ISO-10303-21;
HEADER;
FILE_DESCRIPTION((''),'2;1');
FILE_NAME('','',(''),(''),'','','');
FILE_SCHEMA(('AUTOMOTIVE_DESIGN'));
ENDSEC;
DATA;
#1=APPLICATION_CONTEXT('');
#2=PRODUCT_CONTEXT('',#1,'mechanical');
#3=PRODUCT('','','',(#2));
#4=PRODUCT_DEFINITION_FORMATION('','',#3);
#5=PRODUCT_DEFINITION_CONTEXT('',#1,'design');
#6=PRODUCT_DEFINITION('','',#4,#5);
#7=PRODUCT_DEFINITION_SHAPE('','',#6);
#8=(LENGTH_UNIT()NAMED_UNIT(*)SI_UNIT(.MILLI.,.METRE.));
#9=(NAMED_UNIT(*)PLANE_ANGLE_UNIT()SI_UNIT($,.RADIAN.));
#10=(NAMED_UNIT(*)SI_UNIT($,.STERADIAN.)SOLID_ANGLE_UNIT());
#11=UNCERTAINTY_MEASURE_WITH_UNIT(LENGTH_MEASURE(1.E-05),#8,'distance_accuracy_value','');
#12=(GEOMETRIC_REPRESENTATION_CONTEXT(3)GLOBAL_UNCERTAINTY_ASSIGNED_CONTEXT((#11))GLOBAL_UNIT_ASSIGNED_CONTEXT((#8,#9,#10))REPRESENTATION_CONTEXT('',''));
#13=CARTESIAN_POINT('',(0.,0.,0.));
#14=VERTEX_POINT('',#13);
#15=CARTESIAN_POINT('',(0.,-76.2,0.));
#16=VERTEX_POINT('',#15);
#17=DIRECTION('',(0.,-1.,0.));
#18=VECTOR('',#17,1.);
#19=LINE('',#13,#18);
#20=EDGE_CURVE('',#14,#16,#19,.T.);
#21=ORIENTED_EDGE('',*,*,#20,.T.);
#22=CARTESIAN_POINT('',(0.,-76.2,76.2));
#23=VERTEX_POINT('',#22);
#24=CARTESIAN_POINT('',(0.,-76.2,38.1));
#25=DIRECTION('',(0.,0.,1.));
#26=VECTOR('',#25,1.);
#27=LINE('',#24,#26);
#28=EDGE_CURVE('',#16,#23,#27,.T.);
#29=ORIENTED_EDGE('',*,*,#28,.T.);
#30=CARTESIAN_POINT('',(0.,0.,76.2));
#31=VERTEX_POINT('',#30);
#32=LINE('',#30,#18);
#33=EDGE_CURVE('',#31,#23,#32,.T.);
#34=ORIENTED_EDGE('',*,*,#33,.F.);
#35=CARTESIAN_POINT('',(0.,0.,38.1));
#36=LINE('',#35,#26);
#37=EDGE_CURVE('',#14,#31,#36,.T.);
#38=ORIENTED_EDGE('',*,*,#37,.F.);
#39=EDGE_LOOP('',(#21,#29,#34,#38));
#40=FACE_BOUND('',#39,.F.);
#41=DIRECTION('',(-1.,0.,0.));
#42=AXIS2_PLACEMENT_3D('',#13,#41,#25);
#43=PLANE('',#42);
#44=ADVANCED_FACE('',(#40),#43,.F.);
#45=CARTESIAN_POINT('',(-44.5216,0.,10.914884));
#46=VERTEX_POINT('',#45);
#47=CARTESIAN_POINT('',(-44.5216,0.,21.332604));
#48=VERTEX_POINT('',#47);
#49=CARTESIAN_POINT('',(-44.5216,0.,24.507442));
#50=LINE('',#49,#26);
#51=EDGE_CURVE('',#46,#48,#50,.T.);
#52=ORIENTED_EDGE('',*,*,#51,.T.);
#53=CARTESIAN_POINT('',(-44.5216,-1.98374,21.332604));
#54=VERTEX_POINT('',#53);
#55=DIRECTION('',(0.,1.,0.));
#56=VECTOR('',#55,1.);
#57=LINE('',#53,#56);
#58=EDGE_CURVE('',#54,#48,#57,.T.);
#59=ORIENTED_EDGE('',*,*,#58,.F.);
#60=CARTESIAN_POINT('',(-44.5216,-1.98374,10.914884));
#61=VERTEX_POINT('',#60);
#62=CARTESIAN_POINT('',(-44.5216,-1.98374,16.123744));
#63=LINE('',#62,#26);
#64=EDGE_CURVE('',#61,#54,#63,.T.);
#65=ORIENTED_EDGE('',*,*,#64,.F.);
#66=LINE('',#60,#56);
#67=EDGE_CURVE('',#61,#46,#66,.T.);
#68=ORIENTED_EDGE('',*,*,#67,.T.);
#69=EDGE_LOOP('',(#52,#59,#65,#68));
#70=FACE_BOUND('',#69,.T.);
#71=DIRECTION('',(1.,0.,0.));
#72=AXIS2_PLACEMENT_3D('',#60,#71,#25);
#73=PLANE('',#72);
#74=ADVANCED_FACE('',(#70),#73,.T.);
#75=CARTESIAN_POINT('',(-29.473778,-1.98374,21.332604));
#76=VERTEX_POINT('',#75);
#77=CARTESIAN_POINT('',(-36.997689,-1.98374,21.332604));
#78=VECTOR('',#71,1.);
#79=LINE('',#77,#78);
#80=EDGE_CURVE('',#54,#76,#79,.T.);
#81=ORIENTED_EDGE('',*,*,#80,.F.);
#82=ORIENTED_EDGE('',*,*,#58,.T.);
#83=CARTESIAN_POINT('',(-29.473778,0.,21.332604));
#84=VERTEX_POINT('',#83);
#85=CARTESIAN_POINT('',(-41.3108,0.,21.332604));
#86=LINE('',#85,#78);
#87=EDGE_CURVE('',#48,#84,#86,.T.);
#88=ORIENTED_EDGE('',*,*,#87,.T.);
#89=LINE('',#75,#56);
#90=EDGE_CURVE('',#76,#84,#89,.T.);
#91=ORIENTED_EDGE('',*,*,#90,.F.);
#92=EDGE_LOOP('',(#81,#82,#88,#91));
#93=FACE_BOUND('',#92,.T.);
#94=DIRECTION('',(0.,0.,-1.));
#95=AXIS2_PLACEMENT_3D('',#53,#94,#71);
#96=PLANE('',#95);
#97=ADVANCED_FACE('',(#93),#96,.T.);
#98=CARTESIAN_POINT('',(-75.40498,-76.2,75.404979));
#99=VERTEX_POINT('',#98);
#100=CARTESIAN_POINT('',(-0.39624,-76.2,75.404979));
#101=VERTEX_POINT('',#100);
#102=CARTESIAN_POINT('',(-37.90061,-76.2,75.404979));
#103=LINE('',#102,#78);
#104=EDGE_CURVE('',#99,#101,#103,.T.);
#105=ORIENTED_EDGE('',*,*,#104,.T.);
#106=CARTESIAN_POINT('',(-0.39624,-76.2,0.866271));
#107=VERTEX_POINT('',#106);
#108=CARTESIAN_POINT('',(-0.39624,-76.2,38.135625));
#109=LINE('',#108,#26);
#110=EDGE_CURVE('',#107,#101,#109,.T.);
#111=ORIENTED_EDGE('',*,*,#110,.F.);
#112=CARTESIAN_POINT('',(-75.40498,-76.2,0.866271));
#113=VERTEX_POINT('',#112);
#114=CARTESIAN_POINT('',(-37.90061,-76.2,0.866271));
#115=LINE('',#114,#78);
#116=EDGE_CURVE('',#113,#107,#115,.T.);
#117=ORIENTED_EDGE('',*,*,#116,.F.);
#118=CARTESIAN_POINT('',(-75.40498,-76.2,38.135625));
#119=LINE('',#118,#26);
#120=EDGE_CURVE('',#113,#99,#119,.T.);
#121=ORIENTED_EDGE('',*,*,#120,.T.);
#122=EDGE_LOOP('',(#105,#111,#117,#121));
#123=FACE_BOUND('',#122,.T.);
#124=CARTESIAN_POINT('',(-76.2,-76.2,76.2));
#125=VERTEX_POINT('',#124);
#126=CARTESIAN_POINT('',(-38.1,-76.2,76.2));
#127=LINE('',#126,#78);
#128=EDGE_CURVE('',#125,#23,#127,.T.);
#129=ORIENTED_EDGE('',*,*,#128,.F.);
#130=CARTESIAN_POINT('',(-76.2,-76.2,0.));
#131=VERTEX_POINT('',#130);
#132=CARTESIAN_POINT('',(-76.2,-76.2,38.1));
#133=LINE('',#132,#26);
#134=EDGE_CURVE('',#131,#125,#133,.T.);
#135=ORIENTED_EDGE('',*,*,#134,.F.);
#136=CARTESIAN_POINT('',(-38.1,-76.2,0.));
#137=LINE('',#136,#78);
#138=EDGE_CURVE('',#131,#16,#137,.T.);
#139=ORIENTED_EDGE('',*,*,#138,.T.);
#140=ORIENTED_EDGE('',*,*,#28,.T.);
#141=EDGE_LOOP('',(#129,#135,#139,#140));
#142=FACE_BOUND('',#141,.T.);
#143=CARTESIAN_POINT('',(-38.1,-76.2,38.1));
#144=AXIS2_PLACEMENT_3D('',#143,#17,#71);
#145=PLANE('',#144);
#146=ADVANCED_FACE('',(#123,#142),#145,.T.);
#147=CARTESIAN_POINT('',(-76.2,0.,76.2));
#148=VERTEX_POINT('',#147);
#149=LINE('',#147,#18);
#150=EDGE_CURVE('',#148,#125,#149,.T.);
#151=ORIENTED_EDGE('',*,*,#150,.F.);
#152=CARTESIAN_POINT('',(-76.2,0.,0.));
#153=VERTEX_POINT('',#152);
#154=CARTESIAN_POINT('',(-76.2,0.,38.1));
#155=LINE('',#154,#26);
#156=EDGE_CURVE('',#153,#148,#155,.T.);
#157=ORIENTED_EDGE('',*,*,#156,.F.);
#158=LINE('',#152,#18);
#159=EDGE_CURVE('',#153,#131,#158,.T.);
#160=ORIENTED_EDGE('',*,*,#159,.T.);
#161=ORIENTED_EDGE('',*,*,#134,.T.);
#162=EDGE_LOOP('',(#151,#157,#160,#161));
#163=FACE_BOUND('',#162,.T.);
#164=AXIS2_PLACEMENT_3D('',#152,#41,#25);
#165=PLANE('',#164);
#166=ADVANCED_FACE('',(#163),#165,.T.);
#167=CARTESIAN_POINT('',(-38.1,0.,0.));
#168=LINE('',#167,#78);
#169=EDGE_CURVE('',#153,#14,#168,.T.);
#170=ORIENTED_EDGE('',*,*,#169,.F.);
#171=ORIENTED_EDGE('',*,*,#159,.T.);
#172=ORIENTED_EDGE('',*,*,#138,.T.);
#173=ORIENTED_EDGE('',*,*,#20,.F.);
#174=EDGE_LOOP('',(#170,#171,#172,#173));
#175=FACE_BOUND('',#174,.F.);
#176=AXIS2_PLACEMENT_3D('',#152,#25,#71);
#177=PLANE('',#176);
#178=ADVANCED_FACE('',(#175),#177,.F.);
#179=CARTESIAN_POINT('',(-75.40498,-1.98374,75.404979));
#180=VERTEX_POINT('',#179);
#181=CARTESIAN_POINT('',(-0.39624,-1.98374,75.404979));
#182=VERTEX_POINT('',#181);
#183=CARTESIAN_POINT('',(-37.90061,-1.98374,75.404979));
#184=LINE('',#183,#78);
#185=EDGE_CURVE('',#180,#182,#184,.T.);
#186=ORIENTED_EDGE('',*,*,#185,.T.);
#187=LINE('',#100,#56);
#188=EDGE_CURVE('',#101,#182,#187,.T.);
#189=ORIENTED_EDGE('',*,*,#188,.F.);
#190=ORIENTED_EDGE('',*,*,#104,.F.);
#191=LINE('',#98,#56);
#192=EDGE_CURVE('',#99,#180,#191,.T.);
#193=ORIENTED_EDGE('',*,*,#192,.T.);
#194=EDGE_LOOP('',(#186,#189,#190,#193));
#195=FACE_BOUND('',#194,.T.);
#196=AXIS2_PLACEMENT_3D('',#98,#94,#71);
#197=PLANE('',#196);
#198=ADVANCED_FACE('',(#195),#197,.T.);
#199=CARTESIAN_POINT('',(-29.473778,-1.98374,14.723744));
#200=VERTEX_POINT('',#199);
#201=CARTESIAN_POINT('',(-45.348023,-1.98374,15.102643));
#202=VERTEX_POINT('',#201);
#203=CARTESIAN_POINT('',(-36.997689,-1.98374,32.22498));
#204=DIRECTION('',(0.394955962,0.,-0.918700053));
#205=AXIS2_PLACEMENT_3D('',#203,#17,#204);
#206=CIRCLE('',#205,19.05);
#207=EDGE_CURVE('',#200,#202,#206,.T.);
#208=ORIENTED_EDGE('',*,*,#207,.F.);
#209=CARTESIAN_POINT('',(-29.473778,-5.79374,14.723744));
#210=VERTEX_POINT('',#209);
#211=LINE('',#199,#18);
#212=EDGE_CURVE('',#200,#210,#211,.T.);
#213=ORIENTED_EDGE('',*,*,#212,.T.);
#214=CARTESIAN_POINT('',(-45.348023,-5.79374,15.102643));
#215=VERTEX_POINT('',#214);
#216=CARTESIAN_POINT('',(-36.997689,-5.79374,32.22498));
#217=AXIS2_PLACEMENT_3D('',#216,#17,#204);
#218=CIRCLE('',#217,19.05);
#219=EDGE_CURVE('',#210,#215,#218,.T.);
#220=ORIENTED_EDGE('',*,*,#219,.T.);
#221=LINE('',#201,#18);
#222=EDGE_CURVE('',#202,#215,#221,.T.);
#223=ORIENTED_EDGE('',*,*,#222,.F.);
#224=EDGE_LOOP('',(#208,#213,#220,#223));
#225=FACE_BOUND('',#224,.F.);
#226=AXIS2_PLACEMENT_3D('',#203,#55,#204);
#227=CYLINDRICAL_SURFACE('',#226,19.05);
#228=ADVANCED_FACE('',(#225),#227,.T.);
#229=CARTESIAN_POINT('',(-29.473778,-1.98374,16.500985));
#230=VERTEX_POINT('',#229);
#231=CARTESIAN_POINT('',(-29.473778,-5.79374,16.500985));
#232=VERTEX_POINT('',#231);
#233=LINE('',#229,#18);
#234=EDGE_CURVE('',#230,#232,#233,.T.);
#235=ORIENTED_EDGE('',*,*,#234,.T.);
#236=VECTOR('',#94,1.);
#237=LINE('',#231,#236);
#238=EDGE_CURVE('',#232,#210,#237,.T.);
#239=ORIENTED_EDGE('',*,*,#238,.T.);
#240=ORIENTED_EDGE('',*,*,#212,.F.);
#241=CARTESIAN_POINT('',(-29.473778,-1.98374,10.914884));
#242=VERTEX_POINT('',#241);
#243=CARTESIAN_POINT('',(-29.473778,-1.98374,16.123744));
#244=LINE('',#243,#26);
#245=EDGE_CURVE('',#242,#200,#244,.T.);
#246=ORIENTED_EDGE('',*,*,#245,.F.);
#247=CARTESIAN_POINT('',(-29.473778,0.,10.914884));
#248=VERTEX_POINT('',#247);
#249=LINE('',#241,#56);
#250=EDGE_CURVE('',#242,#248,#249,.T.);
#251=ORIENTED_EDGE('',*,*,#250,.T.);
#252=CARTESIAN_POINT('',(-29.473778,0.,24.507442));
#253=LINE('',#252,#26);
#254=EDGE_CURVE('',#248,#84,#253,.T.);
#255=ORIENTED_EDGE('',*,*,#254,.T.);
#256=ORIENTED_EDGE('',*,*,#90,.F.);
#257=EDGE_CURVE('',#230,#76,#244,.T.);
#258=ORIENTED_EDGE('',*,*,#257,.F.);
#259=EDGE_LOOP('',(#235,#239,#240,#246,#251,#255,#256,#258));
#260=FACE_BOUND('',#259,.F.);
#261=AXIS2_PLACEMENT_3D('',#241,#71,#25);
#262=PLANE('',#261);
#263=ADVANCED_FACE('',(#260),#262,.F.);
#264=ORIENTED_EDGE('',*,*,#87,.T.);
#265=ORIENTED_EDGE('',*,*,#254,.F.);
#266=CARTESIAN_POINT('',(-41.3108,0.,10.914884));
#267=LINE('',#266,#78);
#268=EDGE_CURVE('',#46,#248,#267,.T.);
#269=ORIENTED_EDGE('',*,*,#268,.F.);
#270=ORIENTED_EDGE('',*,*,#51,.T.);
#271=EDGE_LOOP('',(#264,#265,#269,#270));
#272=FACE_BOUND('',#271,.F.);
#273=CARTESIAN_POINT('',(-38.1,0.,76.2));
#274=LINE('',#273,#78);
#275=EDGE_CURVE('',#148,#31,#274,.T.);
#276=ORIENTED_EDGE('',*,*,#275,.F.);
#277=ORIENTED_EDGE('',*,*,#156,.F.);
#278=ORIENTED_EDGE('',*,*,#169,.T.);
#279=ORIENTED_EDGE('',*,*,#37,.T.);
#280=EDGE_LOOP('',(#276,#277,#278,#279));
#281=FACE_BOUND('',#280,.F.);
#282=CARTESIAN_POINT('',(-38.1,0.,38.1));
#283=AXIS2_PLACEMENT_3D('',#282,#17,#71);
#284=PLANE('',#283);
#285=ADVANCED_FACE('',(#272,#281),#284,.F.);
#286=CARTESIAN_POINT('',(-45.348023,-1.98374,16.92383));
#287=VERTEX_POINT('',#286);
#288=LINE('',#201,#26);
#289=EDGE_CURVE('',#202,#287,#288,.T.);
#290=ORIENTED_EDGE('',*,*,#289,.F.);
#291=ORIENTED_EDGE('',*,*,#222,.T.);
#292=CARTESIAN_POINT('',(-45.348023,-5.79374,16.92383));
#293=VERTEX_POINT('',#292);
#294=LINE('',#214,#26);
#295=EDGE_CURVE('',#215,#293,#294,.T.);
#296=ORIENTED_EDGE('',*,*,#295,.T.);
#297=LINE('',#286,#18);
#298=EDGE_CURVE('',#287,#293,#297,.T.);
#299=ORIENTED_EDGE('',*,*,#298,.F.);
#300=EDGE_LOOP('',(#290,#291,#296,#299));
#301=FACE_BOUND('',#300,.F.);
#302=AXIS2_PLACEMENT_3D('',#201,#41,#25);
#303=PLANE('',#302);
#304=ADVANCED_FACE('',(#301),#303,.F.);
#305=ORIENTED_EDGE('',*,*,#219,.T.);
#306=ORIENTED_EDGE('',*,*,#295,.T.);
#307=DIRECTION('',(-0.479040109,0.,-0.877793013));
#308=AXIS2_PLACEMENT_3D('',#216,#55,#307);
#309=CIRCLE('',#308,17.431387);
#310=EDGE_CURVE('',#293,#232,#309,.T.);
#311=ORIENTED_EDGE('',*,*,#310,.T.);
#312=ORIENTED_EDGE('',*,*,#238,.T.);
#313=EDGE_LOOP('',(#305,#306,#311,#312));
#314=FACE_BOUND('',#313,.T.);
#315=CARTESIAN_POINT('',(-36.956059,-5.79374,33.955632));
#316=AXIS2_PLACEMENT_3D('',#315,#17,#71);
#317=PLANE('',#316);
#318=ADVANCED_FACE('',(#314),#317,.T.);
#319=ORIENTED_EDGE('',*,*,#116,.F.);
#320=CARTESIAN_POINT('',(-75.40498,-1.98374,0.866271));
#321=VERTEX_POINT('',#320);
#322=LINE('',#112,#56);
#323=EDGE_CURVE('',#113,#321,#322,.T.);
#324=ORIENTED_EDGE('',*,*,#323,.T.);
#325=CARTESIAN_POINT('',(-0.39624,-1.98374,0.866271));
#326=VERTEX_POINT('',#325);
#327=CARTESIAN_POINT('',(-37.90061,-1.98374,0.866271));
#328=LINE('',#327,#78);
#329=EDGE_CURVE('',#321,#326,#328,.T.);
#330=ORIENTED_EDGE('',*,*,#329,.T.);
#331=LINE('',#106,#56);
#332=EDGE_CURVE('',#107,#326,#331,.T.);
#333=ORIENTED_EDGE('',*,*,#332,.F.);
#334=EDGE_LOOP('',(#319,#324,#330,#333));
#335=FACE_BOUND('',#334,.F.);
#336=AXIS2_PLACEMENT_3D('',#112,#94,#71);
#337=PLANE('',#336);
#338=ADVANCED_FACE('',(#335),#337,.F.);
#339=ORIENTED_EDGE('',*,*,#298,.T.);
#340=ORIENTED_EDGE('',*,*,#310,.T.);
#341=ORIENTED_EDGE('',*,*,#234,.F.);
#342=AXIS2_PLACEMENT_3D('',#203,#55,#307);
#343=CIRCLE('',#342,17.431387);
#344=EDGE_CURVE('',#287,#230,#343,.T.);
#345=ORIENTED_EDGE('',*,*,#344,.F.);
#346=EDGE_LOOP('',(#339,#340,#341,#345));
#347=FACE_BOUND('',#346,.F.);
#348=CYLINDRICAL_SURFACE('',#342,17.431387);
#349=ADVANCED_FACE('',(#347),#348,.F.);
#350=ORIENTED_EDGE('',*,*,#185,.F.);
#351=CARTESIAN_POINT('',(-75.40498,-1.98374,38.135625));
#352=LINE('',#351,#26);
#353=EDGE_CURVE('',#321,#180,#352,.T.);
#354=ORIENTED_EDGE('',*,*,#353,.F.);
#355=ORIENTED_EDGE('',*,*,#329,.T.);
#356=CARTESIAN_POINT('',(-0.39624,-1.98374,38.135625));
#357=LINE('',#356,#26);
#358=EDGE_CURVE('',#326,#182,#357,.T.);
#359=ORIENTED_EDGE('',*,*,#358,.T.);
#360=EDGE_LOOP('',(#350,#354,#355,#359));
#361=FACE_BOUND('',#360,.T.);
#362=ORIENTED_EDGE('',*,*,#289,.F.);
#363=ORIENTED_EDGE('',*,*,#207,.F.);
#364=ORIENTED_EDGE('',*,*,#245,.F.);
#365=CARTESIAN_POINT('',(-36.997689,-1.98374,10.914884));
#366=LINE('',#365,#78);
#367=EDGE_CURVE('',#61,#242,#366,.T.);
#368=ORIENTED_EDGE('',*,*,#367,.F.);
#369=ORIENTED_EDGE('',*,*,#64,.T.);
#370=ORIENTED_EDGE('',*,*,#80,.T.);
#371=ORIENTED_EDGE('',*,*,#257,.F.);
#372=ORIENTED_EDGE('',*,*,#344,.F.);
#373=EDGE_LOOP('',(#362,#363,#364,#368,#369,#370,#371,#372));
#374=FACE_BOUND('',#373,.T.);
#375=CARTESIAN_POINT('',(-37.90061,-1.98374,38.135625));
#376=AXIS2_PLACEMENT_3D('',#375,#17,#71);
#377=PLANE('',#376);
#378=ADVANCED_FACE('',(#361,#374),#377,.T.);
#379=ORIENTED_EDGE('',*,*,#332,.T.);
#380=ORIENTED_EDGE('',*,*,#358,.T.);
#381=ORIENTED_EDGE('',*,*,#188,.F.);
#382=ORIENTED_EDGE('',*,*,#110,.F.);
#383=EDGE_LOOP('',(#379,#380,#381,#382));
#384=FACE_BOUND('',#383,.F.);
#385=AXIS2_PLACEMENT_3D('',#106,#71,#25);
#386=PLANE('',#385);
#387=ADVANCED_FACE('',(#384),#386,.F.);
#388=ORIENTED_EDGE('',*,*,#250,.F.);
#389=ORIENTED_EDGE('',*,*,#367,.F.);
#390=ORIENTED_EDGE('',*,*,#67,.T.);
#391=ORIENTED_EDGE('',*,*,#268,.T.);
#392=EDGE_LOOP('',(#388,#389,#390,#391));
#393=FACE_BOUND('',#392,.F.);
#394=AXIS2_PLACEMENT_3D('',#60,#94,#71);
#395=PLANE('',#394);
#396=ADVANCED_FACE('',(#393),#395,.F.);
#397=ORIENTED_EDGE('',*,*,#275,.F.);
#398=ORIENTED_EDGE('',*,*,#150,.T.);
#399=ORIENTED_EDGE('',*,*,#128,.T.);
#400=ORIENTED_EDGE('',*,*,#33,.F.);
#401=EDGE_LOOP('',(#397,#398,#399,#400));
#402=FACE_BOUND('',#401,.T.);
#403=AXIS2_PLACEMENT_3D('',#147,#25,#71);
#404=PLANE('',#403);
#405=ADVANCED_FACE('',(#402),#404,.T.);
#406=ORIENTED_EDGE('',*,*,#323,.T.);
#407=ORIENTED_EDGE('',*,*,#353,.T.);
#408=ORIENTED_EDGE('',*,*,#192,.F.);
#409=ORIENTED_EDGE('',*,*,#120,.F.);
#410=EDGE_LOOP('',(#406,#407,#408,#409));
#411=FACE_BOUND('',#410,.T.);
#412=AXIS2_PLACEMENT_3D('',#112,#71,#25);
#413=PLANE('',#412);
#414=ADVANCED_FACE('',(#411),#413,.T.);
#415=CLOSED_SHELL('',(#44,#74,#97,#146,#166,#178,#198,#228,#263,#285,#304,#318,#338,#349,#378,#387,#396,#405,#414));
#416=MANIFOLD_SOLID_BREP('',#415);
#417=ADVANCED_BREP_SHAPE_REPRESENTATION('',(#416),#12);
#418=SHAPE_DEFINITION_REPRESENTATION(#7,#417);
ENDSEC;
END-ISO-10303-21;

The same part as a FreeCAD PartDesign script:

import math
import FreeCAD as App
import Part
import Sketcher

V = App.Vector
Q = App.Units.Quantity

doc = App.newDocument("Part")
body = doc.addObject("PartDesign::Body", "Body")

# Sketch on XZ plane
sketch1 = body.newObject("Sketcher::SketchObject", "Sketch")
sketch1.AttachmentSupport = (doc.getObject("XZ_Plane"), [""])
sketch1.MapMode = "FlatFace"
sketch1.addGeometry([
    Part.LineSegment(V(-76.2, 76.2, 0), V(-76.2, 0, 0)),
    Part.LineSegment(V(-76.2, 0, 0), V(0, 0, 0)),
    Part.LineSegment(V(0, 0, 0), V(0, 76.2, 0)),
    Part.LineSegment(V(0, 76.2, 0), V(-76.2, 76.2, 0)),
], False)
sketch1.addConstraint([
    Sketcher.Constraint("Coincident", 0, 2, 1, 1),
    Sketcher.Constraint("Coincident", 1, 2, 2, 1),
    Sketcher.Constraint("Coincident", 2, 2, 3, 1),
    Sketcher.Constraint("Coincident", 3, 2, 0, 1),
    Sketcher.Constraint("Vertical", 0),
    Sketcher.Constraint("Horizontal", 1),
    Sketcher.Constraint("Vertical", 2),
    Sketcher.Constraint("Horizontal", 3),
    Sketcher.Constraint("Coincident", 1, 2, -1, 1),
    Sketcher.Constraint("Equal", 3, 0),
    Sketcher.Constraint("DistanceX", 1, 1, 1, 2, Q("3 in")),
])
pad1 = body.newObject("PartDesign::Pad", "Pad")
pad1.Profile = sketch1
pad1.Length = Q("3 in")

# Sketch on XZ plane
sketch2 = body.newObject("Sketcher::SketchObject", "Sketch001")
sketch2.AttachmentSupport = (doc.getObject("XZ_Plane"), [""])
sketch2.MapMode = "FlatFace"
sketch2.AttachmentOffset = App.Placement(V(0, 0, 3 * 25.4), App.Rotation())
sketch2.addGeometry([
    Part.LineSegment(V(-75.40498, 75.404979, 0), V(-75.40498, 0.866271, 0)),
    Part.LineSegment(V(-75.40498, 0.866271, 0), V(-0.39624, 0.866271, 0)),
    Part.LineSegment(V(-0.39624, 0.866271, 0), V(-0.39624, 75.404979, 0)),
    Part.LineSegment(V(-0.39624, 75.404979, 0), V(-75.40498, 75.404979, 0)),
], False)
sketch2.addConstraint([
    Sketcher.Constraint("Coincident", 0, 2, 1, 1),
    Sketcher.Constraint("Coincident", 1, 2, 2, 1),
    Sketcher.Constraint("Coincident", 2, 2, 3, 1),
    Sketcher.Constraint("Coincident", 3, 2, 0, 1),
    Sketcher.Constraint("Vertical", 0),
    Sketcher.Constraint("Horizontal", 1),
    Sketcher.Constraint("Vertical", 2),
    Sketcher.Constraint("Horizontal", 3),
    Sketcher.Constraint("DistanceX", 1, 1, 1, 2, Q("2.9531 in")),
    Sketcher.Constraint("DistanceX", 0, 2, -1, 1, Q("2.9687 in")),
    Sketcher.Constraint("DistanceY", -1, 1, 2, 2, Q("2.9687 in")),
    Sketcher.Constraint("DistanceY", 0, 2, 0, 1, Q("74.538709 mm")),
])
pocket1 = body.newObject("PartDesign::Pocket", "Pocket")
pocket1.Profile = sketch2
pocket1.Length = Q("2.9219 in")

# Sketch on XZ plane
sketch3 = body.newObject("Sketcher::SketchObject", "Sketch002")
sketch3.AttachmentSupport = (doc.getObject("XZ_Plane"), [""])
sketch3.MapMode = "FlatFace"
sketch3.AttachmentOffset = App.Placement(V(0, 0, 0.0781 * 25.4), App.Rotation())
sketch3.addGeometry([
    Part.LineSegment(V(-44.5216, 21.332604, 0), V(-44.5216, 10.914884, 0)),
    Part.LineSegment(V(-44.5216, 10.914884, 0), V(-29.473778, 10.914884, 0)),
    Part.LineSegment(V(-29.473778, 10.914884, 0), V(-29.473778, 21.332604, 0)),
    Part.LineSegment(V(-29.473778, 21.332604, 0), V(-44.5216, 21.332604, 0)),
], False)
sketch3.addConstraint([
    Sketcher.Constraint("Coincident", 0, 2, 1, 1),
    Sketcher.Constraint("Coincident", 1, 2, 2, 1),
    Sketcher.Constraint("Coincident", 2, 2, 3, 1),
    Sketcher.Constraint("Coincident", 3, 2, 0, 1),
    Sketcher.Constraint("Vertical", 0),
    Sketcher.Constraint("Horizontal", 1),
    Sketcher.Constraint("Vertical", 2),
    Sketcher.Constraint("Horizontal", 3),
    Sketcher.Constraint("DistanceY", 0, 2, 0, 1, Q("10.417721 mm")),
    Sketcher.Constraint("DistanceX", 0, 2, -1, 1, Q("44.5216 mm")),
    Sketcher.Constraint("DistanceX", 1, 1, 1, 2, Q("15.047822 mm")),
    Sketcher.Constraint("DistanceY", -1, 1, 0, 2, Q("10.914884 mm")),
])
pocket2 = body.newObject("PartDesign::Pocket", "Pocket001")
pocket2.Profile = sketch3
pocket2.Length = Q("0.9375 in")

# Sketch on XZ plane
sketch4 = body.newObject("Sketcher::SketchObject", "Sketch003")
sketch4.AttachmentSupport = (doc.getObject("XZ_Plane"), [""])
sketch4.MapMode = "FlatFace"
sketch4.AttachmentOffset = App.Placement(V(0, 0, 0.0781 * 25.4), App.Rotation())
sketch4.addGeometry([
    Part.LineSegment(V(-29.473778, 16.500985, 0), V(-29.473778, 14.723744, 0)),
    Part.ArcOfCircle(Part.Circle(V(-36.997689, 32.22498, 0), V(0, 0, 1), 19.05), math.radians(-66.736772), math.radians(244.00213)),
    Part.LineSegment(V(-45.348023, 15.102643, 0), V(-45.348023, 16.92383, 0)),
    Part.ArcOfCircle(Part.Circle(V(-36.997689, 32.22498, 0), V(0, 0, 1), 17.431387), math.radians(-64.428945), math.radians(241.377271)),
], False)
sketch4.addConstraint([
    Sketcher.Constraint("Coincident", 0, 2, 1, 1),
    Sketcher.Constraint("Coincident", 1, 2, 2, 1),
    Sketcher.Constraint("Coincident", 2, 2, 3, 2),
    Sketcher.Constraint("Coincident", 3, 1, 0, 1),
    Sketcher.Constraint("Vertical", 0),
    Sketcher.Constraint("Vertical", 2),
    Sketcher.Constraint("Coincident", 3, 3, 1, 3),
    Sketcher.Constraint("Radius", 1, Q("0.75 in")),
    Sketcher.Constraint("DistanceY", -1, 1, 1, 3, Q("1.2687 in")),
    Sketcher.Constraint("Radius", 3, Q("17.431387 mm")),
    Sketcher.Constraint("DistanceY", 0, 2, 0, 1, Q("1.777241 mm")),
    Sketcher.Constraint("DistanceY", 0, 2, 1, 2, Q("0.378899 mm")),
    Sketcher.Constraint("DistanceX", 1, 3, -1, 1, Q("36.997689 mm")),
])
pad2 = body.newObject("PartDesign::Pad", "Pad001")
pad2.Profile = sketch4
pad2.Length = Q("0.15 in")

doc.recompute()
